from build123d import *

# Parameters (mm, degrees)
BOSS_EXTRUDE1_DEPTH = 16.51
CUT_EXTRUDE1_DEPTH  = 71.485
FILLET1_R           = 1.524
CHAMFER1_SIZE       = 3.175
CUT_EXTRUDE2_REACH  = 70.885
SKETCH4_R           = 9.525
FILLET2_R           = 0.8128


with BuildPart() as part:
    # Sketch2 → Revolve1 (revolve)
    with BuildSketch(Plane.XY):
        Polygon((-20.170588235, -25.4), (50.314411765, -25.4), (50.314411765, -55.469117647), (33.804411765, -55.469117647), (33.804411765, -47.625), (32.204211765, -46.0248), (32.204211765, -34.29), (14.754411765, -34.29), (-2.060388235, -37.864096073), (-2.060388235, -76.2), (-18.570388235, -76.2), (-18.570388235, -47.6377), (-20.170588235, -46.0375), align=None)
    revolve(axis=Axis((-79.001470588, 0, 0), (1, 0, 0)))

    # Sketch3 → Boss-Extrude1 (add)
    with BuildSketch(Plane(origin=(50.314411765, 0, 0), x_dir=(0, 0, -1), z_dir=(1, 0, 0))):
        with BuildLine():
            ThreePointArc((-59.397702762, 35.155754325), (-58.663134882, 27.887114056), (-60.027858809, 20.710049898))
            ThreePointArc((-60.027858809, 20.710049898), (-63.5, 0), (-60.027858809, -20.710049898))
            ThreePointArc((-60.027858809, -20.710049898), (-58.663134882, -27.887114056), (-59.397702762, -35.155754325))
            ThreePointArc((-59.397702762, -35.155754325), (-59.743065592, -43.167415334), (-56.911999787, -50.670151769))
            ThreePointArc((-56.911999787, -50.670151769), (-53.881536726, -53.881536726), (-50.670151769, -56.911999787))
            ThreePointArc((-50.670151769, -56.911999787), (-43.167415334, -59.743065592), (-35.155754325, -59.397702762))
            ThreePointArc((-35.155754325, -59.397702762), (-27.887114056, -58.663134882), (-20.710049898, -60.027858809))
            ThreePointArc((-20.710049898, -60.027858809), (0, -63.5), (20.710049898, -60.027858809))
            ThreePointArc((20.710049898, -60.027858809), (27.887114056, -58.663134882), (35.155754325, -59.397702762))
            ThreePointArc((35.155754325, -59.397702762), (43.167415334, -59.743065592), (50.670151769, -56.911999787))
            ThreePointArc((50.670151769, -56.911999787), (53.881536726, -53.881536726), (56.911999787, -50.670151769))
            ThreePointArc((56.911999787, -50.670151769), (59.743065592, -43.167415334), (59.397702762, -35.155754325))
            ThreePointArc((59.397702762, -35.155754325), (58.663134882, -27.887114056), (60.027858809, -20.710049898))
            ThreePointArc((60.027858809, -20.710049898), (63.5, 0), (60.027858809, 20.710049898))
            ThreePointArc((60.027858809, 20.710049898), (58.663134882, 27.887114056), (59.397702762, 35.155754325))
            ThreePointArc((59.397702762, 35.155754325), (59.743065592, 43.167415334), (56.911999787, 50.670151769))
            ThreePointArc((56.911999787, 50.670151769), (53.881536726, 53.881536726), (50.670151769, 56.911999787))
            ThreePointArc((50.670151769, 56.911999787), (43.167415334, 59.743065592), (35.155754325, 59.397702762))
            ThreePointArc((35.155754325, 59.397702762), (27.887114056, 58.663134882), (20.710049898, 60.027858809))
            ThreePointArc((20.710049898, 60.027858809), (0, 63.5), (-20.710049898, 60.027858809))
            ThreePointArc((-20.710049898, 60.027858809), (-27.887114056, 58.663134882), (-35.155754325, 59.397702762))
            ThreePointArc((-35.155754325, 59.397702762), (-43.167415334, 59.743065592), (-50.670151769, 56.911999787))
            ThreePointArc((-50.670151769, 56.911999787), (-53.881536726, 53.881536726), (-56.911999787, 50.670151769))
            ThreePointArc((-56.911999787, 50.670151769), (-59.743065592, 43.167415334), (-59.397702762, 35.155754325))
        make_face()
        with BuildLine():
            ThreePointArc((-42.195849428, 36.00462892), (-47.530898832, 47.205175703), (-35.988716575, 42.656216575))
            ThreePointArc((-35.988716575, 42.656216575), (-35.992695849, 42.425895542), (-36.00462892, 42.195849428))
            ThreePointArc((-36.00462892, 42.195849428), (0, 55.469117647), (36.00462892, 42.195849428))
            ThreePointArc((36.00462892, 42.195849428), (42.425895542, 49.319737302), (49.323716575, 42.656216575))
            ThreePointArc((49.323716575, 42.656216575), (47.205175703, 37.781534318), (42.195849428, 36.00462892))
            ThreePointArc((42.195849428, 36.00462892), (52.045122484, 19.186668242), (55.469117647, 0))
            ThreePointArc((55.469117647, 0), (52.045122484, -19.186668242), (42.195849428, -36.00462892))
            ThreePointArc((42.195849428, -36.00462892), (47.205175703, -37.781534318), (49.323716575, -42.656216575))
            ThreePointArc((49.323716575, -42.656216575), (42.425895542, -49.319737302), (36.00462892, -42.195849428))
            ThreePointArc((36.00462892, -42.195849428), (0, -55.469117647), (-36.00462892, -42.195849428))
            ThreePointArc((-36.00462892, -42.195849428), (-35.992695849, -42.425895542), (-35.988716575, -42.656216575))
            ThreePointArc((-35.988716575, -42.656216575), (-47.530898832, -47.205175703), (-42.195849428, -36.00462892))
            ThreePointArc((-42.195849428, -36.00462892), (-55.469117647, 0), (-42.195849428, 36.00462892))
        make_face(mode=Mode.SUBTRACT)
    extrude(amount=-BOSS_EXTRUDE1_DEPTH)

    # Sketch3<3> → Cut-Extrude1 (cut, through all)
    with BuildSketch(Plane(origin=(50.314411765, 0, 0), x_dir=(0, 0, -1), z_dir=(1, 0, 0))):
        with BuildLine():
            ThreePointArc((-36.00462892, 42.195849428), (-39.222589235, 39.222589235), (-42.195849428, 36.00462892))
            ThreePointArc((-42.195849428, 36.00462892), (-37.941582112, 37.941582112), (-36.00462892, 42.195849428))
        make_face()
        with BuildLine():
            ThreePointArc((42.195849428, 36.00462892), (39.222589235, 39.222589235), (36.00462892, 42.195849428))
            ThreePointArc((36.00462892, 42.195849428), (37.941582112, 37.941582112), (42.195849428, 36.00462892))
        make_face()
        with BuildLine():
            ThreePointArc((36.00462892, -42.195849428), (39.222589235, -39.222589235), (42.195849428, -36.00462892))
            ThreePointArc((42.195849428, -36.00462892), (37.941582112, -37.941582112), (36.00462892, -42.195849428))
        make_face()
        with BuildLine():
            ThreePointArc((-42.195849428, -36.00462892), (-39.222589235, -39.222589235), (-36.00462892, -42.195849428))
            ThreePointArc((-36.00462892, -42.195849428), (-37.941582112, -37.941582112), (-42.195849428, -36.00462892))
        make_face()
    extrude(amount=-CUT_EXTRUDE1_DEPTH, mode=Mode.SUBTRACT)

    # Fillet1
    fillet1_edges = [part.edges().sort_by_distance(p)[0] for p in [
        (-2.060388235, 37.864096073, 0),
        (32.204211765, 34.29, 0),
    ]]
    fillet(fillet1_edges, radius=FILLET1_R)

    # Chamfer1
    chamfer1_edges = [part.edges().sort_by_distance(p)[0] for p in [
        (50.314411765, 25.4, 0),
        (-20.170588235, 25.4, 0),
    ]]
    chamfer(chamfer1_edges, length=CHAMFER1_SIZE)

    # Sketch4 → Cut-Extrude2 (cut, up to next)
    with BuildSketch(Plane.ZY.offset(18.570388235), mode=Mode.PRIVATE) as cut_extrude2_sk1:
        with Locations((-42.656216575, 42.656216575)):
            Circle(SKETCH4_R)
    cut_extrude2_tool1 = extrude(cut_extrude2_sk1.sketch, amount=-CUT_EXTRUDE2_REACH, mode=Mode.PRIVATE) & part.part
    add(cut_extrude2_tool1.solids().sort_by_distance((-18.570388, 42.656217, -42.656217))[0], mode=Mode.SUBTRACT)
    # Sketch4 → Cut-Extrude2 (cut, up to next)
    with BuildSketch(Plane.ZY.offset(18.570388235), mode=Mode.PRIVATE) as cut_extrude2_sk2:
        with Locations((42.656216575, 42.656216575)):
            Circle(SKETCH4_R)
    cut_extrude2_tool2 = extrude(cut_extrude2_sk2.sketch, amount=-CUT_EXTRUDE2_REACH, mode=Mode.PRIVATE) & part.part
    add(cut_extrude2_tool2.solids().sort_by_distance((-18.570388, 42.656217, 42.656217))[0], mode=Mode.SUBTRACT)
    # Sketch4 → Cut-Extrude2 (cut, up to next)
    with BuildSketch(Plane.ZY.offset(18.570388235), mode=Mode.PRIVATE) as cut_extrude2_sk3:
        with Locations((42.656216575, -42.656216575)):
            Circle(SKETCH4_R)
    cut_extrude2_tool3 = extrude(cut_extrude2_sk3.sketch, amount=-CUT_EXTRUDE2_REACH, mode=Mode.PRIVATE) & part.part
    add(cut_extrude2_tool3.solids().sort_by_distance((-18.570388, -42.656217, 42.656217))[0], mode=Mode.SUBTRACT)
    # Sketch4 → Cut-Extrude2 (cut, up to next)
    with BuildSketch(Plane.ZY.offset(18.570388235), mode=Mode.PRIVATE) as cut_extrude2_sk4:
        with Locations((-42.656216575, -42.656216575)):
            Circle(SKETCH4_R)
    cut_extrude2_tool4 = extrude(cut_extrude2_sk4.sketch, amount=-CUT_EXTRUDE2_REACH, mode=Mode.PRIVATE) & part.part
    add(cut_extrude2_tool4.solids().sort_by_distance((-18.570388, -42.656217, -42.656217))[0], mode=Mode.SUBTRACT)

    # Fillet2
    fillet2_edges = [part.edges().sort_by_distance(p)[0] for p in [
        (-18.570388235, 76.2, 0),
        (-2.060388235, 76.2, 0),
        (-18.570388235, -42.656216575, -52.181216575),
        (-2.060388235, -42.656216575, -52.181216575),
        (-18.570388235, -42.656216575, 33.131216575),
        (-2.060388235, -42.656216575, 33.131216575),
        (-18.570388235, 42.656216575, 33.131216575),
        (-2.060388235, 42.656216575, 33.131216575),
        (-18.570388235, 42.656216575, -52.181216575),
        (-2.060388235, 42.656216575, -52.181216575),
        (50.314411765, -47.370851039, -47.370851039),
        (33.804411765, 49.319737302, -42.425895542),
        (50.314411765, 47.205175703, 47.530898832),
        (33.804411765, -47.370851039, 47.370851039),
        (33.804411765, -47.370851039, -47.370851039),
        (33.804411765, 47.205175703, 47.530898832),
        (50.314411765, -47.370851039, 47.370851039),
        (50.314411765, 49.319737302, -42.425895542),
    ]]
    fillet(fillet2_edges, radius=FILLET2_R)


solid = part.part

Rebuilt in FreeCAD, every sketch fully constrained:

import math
import FreeCAD as App
import Part
import Sketcher
Q = App.Units.Quantity


def edges_at(feature, points):
    """Names of the edges that pass closest to the given points."""
    edges = feature.Shape.Edges
    near = lambda p: min(range(len(edges)), key=lambda i: edges[i].distToShape(Part.Vertex(*p))[0])
    return sorted({f"Edge{near(p) + 1}" for p in points})


def add_polygon(sketch, points):
    """Adds a closed chain of lines whose ends are joined by coincident constraints."""
    first, n = sketch.GeometryCount, len(points)
    for a, b in zip(points, points[1:] + points[:1]):
        sketch.addGeometry(Part.LineSegment(App.Vector(*a, 0), App.Vector(*b, 0)), False)
    for i in range(n):
        sketch.addConstraint(Sketcher.Constraint("Coincident", first + i, 2, first + (i + 1) % n, 1))

doc = App.newDocument("Part")
body = doc.addObject("PartDesign::Body", "Body")

# Sketch on XY plane
sketch1 = doc.addObject("Sketcher::SketchObject", "Sketch")
body.addObject(sketch1)
sketch1.AttachmentSupport = (doc.XY_Plane, [""])
sketch1.MapMode = "FlatFace"
add_polygon(sketch1, [(50.3, -25.4), (-20.2, -25.4), (-20.2, -46), (-18.6, -47.6), (-18.6, -76.2), (-2.1, -76.2), (-2.1, -37.9), (14.8, -34.3), (32.2, -34.3), (32.2, -46), (33.8, -47.6), (33.8, -55.5), (50.3, -55.5)])  # lines 0-12
sketch1.addConstraint([
    Sketcher.Constraint("Horizontal", 0),
    Sketcher.Constraint("Vertical", 1),
    Sketcher.Constraint("Vertical", 3),
    Sketcher.Constraint("Horizontal", 4),
    Sketcher.Constraint("Vertical", 5),
    Sketcher.Constraint("Horizontal", 7),
    Sketcher.Constraint("Vertical", 8),
    Sketcher.Constraint("Vertical", 10),
    Sketcher.Constraint("Horizontal", 11),
    Sketcher.Constraint("Vertical", 12),
    Sketcher.Constraint("Parallel", 2, 9),
    Sketcher.Constraint("Equal", 4, 11),
    Sketcher.Constraint("Equal", 2, 9),
    Sketcher.Constraint("DistanceY", 0, 2, -1, 1, Q("1 in")),
    Sketcher.Constraint("DistanceY", 3, 2, -1, 1, Q("3 in")),
    Sketcher.Constraint("Angle", 2, Q("-45 deg")),
    Sketcher.Constraint("Angle", 6, Q("12 deg")),
    Sketcher.Constraint("DistanceX", 4, 1, 4, 2, Q("0.65 in")),
    Sketcher.Constraint("DistanceX", 6, 2, 11, 2, Q("1.4 in")),
    Sketcher.Constraint("DistanceX", 0, 2, 0, 1, Q("2.775 in")),
    Sketcher.Constraint("DistanceX", 7, 1, 7, 2, Q("0.687 in")),
    Sketcher.Constraint("DistanceY", 1, 2, 1, 1, Q("0.8125 in")),
    Sketcher.Constraint("DistanceY", 8, 2, 8, 1, Q("0.462 in")),
    Sketcher.Constraint("DistanceY", 6, 2, -1, 1, Q("1.35 in")),
    Sketcher.Constraint("DistanceY", 10, 2, 10, 1, 7.844118),
    Sketcher.Constraint("DistanceX", 0, 2, -1, 1, 20.170588),
])
revolution = doc.addObject("PartDesign::Revolution", "Revolution")
body.addObject(revolution)
revolution.Profile = sketch1
revolution.ReferenceAxis = (sketch1, ["H_Axis"])
revolution.Angle = 360

# Sketch on YZ plane
sketch2 = doc.addObject("Sketcher::SketchObject", "Sketch001")
body.addObject(sketch2)
sketch2.AttachmentSupport = (doc.YZ_Plane, [""])
sketch2.MapMode = "FlatFace"
sketch2.AttachmentOffset = App.Placement(App.Vector(0, 0, 50.314412), App.Rotation())
sketch2.addGeometry([
    Part.ArcOfCircle(Part.Circle(App.Vector(28.99, 84.04, 0), App.Vector(0, 0, 1), 25.4), math.radians(-109), math.radians(-76)),  # 0
    Part.ArcOfCircle(Part.Circle(App.Vector(0, 0, 0), App.Vector(0, 0, 1), 63.5), math.radians(71), math.radians(109)),  # 1
    Part.ArcOfCircle(Part.Circle(App.Vector(-28.99, 84.04, 0), App.Vector(0, 0, 1), 25.4), math.radians(-104), math.radians(-71)),  # 2
    Part.ArcOfCircle(Part.Circle(App.Vector(-40.01, 40.01, 0), App.Vector(0, 0, 1), 19.99), math.radians(76), math.radians(122)),  # 3
    Part.ArcOfCircle(Part.Circle(App.Vector(0, 0, 0), App.Vector(0, 0, 1), 76.2), math.radians(131.68), math.radians(138.32)),  # 4
    Part.ArcOfCircle(Part.Circle(App.Vector(-40.01, 40.01, 0), App.Vector(0, 0, 1), 19.99), math.radians(148), math.radians(194)),  # 5
    Part.ArcOfCircle(Part.Circle(App.Vector(-84.04, 28.99, 0), App.Vector(0, 0, 1), 25.4), math.radians(-19), math.radians(14)),  # 6
    Part.ArcOfCircle(Part.Circle(App.Vector(0, 0, 0), App.Vector(0, 0, 1), 63.5), math.radians(161), math.radians(199)),  # 7
    Part.ArcOfCircle(Part.Circle(App.Vector(-84.04, -28.99, 0), App.Vector(0, 0, 1), 25.4), math.radians(-14), math.radians(19)),  # 8
    Part.ArcOfCircle(Part.Circle(App.Vector(-40.01, -40.01, 0), App.Vector(0, 0, 1), 19.99), math.radians(166), math.radians(212)),  # 9
    Part.ArcOfCircle(Part.Circle(App.Vector(0, 0, 0), App.Vector(0, 0, 1), 76.2), math.radians(-138.32), math.radians(-131.68)),  # 10
    Part.ArcOfCircle(Part.Circle(App.Vector(-40.01, -40.01, 0), App.Vector(0, 0, 1), 19.99), math.radians(-122), math.radians(-76)),  # 11
    Part.ArcOfCircle(Part.Circle(App.Vector(-28.99, -84.04, 0), App.Vector(0, 0, 1), 25.4), math.radians(71), math.radians(104)),  # 12
    Part.ArcOfCircle(Part.Circle(App.Vector(0, 0, 0), App.Vector(0, 0, 1), 63.5), math.radians(-109), math.radians(-71)),  # 13
    Part.ArcOfCircle(Part.Circle(App.Vector(28.99, -84.04, 0), App.Vector(0, 0, 1), 25.4), math.radians(76), math.radians(109)),  # 14
    Part.ArcOfCircle(Part.Circle(App.Vector(40.01, -40.01, 0), App.Vector(0, 0, 1), 19.99), math.radians(-104), math.radians(-58)),  # 15
    Part.ArcOfCircle(Part.Circle(App.Vector(0, 0, 0), App.Vector(0, 0, 1), 76.2), math.radians(-48.32), math.radians(-41.68)),  # 16
    Part.ArcOfCircle(Part.Circle(App.Vector(40.01, -40.01, 0), App.Vector(0, 0, 1), 19.99), math.radians(-32), math.radians(14)),  # 17
    Part.ArcOfCircle(Part.Circle(App.Vector(84.04, -28.99, 0), App.Vector(0, 0, 1), 25.4), math.radians(161), math.radians(194)),  # 18
    Part.ArcOfCircle(Part.Circle(App.Vector(0, 0, 0), App.Vector(0, 0, 1), 63.5), math.radians(-19), math.radians(19)),  # 19
    Part.ArcOfCircle(Part.Circle(App.Vector(84.04, 28.99, 0), App.Vector(0, 0, 1), 25.4), math.radians(166), math.radians(199)),  # 20
    Part.ArcOfCircle(Part.Circle(App.Vector(40.01, 40.01, 0), App.Vector(0, 0, 1), 19.99), math.radians(-14), math.radians(32)),  # 21
    Part.ArcOfCircle(Part.Circle(App.Vector(0, 0, 0), App.Vector(0, 0, 1), 76.2), math.radians(41.68), math.radians(48.32)),  # 22
    Part.ArcOfCircle(Part.Circle(App.Vector(40.01, 40.01, 0), App.Vector(0, 0, 1), 19.99), math.radians(58), math.radians(104)),  # 23
    Part.ArcOfCircle(Part.Circle(App.Vector(0, 0, 0), App.Vector(0, 0, 1), 55.47), math.radians(50), math.radians(130)),  # 24
    Part.ArcOfCircle(Part.Circle(App.Vector(42.66, 42.66, 0), App.Vector(0, 0, 1), 6.67), math.radians(-90), math.radians(184)),  # 25
    Part.ArcOfCircle(Part.Circle(App.Vector(42.66, 42.66, 0), App.Vector(0, 0, 1), 6.67), math.radians(-93.96), math.radians(-90)),  # 26
    Part.ArcOfCircle(Part.Circle(App.Vector(0, 0, 0), App.Vector(0, 0, 1), 55.47), math.radians(-40), math.radians(40)),  # 27
    Part.ArcOfCircle(Part.Circle(App.Vector(42.66, -42.66, 0), App.Vector(0, 0, 1), 6.67), math.radians(-90), math.radians(94)),  # 28
    Part.ArcOfCircle(Part.Circle(App.Vector(42.66, -42.66, 0), App.Vector(0, 0, 1), 6.67), math.radians(176), math.radians(270)),  # 29
    Part.ArcOfCircle(Part.Circle(App.Vector(0, 0, 0), App.Vector(0, 0, 1), 55.47), math.radians(-90), math.radians(-50)),  # 30
    Part.ArcOfCircle(Part.Circle(App.Vector(0, 0, 0), App.Vector(0, 0, 1), 55.47), math.radians(-130), math.radians(-90)),  # 31
    Part.ArcOfCircle(Part.Circle(App.Vector(-42.66, -42.66, 0), App.Vector(0, 0, 1), 6.67), math.radians(-90), math.radians(4)),  # 32
    Part.ArcOfCircle(Part.Circle(App.Vector(-42.66, -42.66, 0), App.Vector(0, 0, 1), 6.67), math.radians(86), math.radians(270)),  # 33
    Part.ArcOfCircle(Part.Circle(App.Vector(0, 0, 0), App.Vector(0, 0, 1), 55.47), math.radians(140), math.radians(220)),  # 34
    Part.ArcOfCircle(Part.Circle(App.Vector(-42.66, 42.66, 0), App.Vector(0, 0, 1), 6.67), math.radians(-90), math.radians(-86.04)),  # 35
    Part.ArcOfCircle(Part.Circle(App.Vector(-42.66, 42.66, 0), App.Vector(0, 0, 1), 6.67), math.radians(-4), math.radians(270)),  # 36
], False)
sketch2.addConstraint([
    Sketcher.Constraint("Tangent", 0, 1, 1, 1),
    Sketcher.Constraint("Tangent", 1, 2, 2, 2),
    Sketcher.Constraint("Tangent", 2, 1, 3, 1),
    Sketcher.Constraint("Coincident", 3, 2, 4, 1),
    Sketcher.Constraint("Coincident", 4, 2, 5, 1),
    Sketcher.Constraint("Tangent", 5, 2, 6, 2),
    Sketcher.Constraint("Tangent", 6, 1, 7, 1),
    Sketcher.Constraint("Tangent", 7, 2, 8, 2),
    Sketcher.Constraint("Tangent", 8, 1, 9, 1),
    Sketcher.Constraint("Coincident", 9, 2, 10, 1),
    Sketcher.Constraint("Coincident", 10, 2, 11, 1),
    Sketcher.Constraint("Tangent", 11, 2, 12, 2),
    Sketcher.Constraint("Tangent", 12, 1, 13, 1),
    Sketcher.Constraint("Tangent", 13, 2, 14, 2),
    Sketcher.Constraint("Tangent", 14, 1, 15, 1),
    Sketcher.Constraint("Coincident", 15, 2, 16, 1),
    Sketcher.Constraint("Coincident", 16, 2, 17, 1),
    Sketcher.Constraint("Tangent", 17, 2, 18, 2),
    Sketcher.Constraint("Tangent", 18, 1, 19, 1),
    Sketcher.Constraint("Tangent", 19, 2, 20, 2),
    Sketcher.Constraint("Tangent", 20, 1, 21, 1),
    Sketcher.Constraint("Coincident", 21, 2, 22, 1),
    Sketcher.Constraint("Coincident", 22, 2, 23, 1),
    Sketcher.Constraint("Tangent", 23, 2, 0, 2),
    Sketcher.Constraint("Coincident", 24, 1, 25, 2),
    Sketcher.Constraint("Tangent", 25, 1, 26, 2),
    Sketcher.Constraint("Coincident", 26, 1, 27, 2),
    Sketcher.Constraint("Coincident", 27, 1, 28, 2),
    Sketcher.Constraint("Tangent", 28, 1, 29, 2),
    Sketcher.Constraint("Coincident", 29, 1, 30, 2),
    Sketcher.Constraint("Tangent", 30, 1, 31, 2),
    Sketcher.Constraint("Coincident", 31, 1, 32, 2),
    Sketcher.Constraint("Tangent", 32, 1, 33, 2),
    Sketcher.Constraint("Coincident", 33, 1, 34, 2),
    Sketcher.Constraint("Coincident", 34, 1, 35, 2),
    Sketcher.Constraint("Tangent", 35, 1, 36, 2),
    Sketcher.Constraint("Coincident", 36, 1, 24, 2),
    Sketcher.Constraint("Coincident", 1, 3, -1, 1),
    Sketcher.Constraint("Coincident", 4, 3, -1, 1),
    Sketcher.Constraint("Coincident", 7, 3, -1, 1),
    Sketcher.Constraint("Coincident", 10, 3, -1, 1),
    Sketcher.Constraint("Coincident", 13, 3, -1, 1),
    Sketcher.Constraint("Coincident", 16, 3, -1, 1),
    Sketcher.Constraint("Coincident", 19, 3, -1, 1),
    Sketcher.Constraint("Coincident", 22, 3, -1, 1),
    Sketcher.Constraint("Coincident", 24, 3, -1, 1),
    Sketcher.Constraint("Coincident", 27, 3, -1, 1),
    Sketcher.Constraint("Coincident", 30, 3, -1, 1),
    Sketcher.Constraint("Coincident", 34, 3, -1, 1),
    Sketcher.Constraint("Coincident", 5, 3, 3, 3),
    Sketcher.Constraint("Coincident", 11, 3, 9, 3),
    Sketcher.Constraint("Coincident", 17, 3, 15, 3),
    Sketcher.Constraint("Coincident", 23, 3, 21, 3),
    Sketcher.Constraint("Equal", 0, 2),
    Sketcher.Constraint("Equal", 3, 5),
    Sketcher.Constraint("Equal", 2, 6),
    Sketcher.Constraint("Equal", 1, 7),
    Sketcher.Constraint("Equal", 6, 8),
    Sketcher.Constraint("Equal", 5, 9),
    Sketcher.Constraint("Equal", 4, 10),
    Sketcher.Constraint("Equal", 9, 11),
    Sketcher.Constraint("Equal", 8, 12),
    Sketcher.Constraint("Equal", 7, 13),
    Sketcher.Constraint("Equal", 12, 14),
    Sketcher.Constraint("Equal", 11, 15),
    Sketcher.Constraint("Equal", 10, 16),
    Sketcher.Constraint("Equal", 15, 17),
    Sketcher.Constraint("Equal", 14, 18),
    Sketcher.Constraint("Equal", 13, 19),
    Sketcher.Constraint("Equal", 18, 20),
    Sketcher.Constraint("Equal", 17, 21),
    Sketcher.Constraint("Equal", 16, 22),
    Sketcher.Constraint("Equal", 21, 23),
    Sketcher.Constraint("Equal", 25, 26),
    Sketcher.Constraint("Equal", 24, 27),
    Sketcher.Constraint("Equal", 26, 28),
    Sketcher.Constraint("Equal", 28, 29),
    Sketcher.Constraint("Equal", 27, 30),
    Sketcher.Constraint("Equal", 30, 31),
    Sketcher.Constraint("Equal", 29, 32),
    Sketcher.Constraint("Equal", 32, 33),
    Sketcher.Constraint("Equal", 31, 34),
    Sketcher.Constraint("Equal", 33, 35),
    Sketcher.Constraint("Equal", 35, 36),
    Sketcher.Constraint("Symmetric", 3, 3, 15, 3, -1, 1),
    Sketcher.Constraint("Symmetric", 9, 3, 21, 3, -1, 1),
    Sketcher.Constraint("Symmetric", 25, 3, 32, 3, -1, 1),
    Sketcher.Constraint("Symmetric", 28, 3, 35, 3, -1, 1),
    Sketcher.Constraint("Symmetric", 9, 3, 15, 3, -2),
    Sketcher.Constraint("Symmetric", 28, 3, 32, 3, -2),
    Sketcher.Constraint("PointOnObject", 30, 1, -2),
    Sketcher.Constraint("Vertical", 29, 3, 25, 1),
    Sketcher.Constraint("Vertical", 25, 1, 28, 1),
    Sketcher.Constraint("Vertical", 36, 3, 32, 1),
    Sketcher.Constraint("Vertical", 32, 1, 35, 1),
    Sketcher.Constraint("Radius", 0, Q("1 in")),
    Sketcher.Constraint("Radius", 4, Q("3 in")),
    Sketcher.Constraint("Radius", 1, Q("2.5 in")),
    Sketcher.Constraint("Radius", 3, Q("0.787 in")),
    Sketcher.Constraint("Radius", 25, Q("0.2625 in")),
    Sketcher.Constraint("DistanceX", 3, 3, -1, 1, Q("1.575 in")),
    Sketcher.Constraint("DistanceY", -1, 1, 3, 3, Q("1.575 in")),
    Sketcher.Constraint("Radius", 24, 55.469118),
    Sketcher.Constraint("DistanceX", -1, 1, 24, 1, 36.004629),
    Sketcher.Constraint("DistanceX", -1, 1, 26, 1, 42.195849),
])
pad1 = doc.addObject("PartDesign::Pad", "Pad")
body.addObject(pad1)
pad1.Profile = sketch2
pad1.Length = Q("0.65 in")
pad1.Reversed = True

# Sketch on YZ plane
sketch3 = doc.addObject("Sketcher::SketchObject", "Sketch002")
body.addObject(sketch3)
sketch3.AttachmentSupport = (doc.YZ_Plane, [""])
sketch3.MapMode = "FlatFace"
sketch3.AttachmentOffset = App.Placement(App.Vector(0, 0, 50.314412), App.Rotation())
sketch3.addGeometry([
    Part.ArcOfCircle(Part.Circle(App.Vector(0, 0, 0), App.Vector(0, 0, 1), 55), math.radians(40.47), math.radians(49.53)),  # 0
    Part.ArcOfCircle(Part.Circle(App.Vector(43, 43, 0), App.Vector(0, 0, 1), 7), math.radians(-176), math.radians(-94)),  # 1
    Part.ArcOfCircle(Part.Circle(App.Vector(0, 0, 0), App.Vector(0, 0, 1), 55), math.radians(-49.53), math.radians(-40.47)),  # 2
    Part.ArcOfCircle(Part.Circle(App.Vector(43, -43, 0), App.Vector(0, 0, 1), 7), math.radians(94), math.radians(176)),  # 3
    Part.ArcOfCircle(Part.Circle(App.Vector(0, 0, 0), App.Vector(0, 0, 1), 55), math.radians(-139.53), math.radians(-130.47)),  # 4
    Part.ArcOfCircle(Part.Circle(App.Vector(-43, -43, 0), App.Vector(0, 0, 1), 7), math.radians(4), math.radians(86)),  # 5
    Part.ArcOfCircle(Part.Circle(App.Vector(0, 0, 0), App.Vector(0, 0, 1), 55), math.radians(130.47), math.radians(139.53)),  # 6
    Part.ArcOfCircle(Part.Circle(App.Vector(-43, 43, 0), App.Vector(0, 0, 1), 7), math.radians(-86), math.radians(-4)),  # 7
], False)
sketch3.addConstraint([
    Sketcher.Constraint("Coincident", 0, 1, 1, 2),
    Sketcher.Constraint("Coincident", 1, 1, 0, 2),
    Sketcher.Constraint("Coincident", 2, 1, 3, 2),
    Sketcher.Constraint("Coincident", 3, 1, 2, 2),
    Sketcher.Constraint("Coincident", 4, 1, 5, 2),
    Sketcher.Constraint("Coincident", 5, 1, 4, 2),
    Sketcher.Constraint("Coincident", 6, 1, 7, 2),
    Sketcher.Constraint("Coincident", 7, 1, 6, 2),
    Sketcher.Constraint("Coincident", 0, 3, -1, 1),
    Sketcher.Constraint("Coincident", 2, 3, -1, 1),
    Sketcher.Constraint("Coincident", 4, 3, -1, 1),
    Sketcher.Constraint("Coincident", 6, 3, -1, 1),
    Sketcher.Constraint("Equal", 0, 2),
    Sketcher.Constraint("Equal", 1, 3),
    Sketcher.Constraint("Equal", 2, 4),
    Sketcher.Constraint("Equal", 3, 5),
    Sketcher.Constraint("Equal", 4, 6),
    Sketcher.Constraint("Equal", 5, 7),
    Sketcher.Constraint("Symmetric", 1, 3, 5, 3, -1, 1),
    Sketcher.Constraint("Symmetric", 3, 3, 7, 3, -1, 1),
    Sketcher.Constraint("Symmetric", 3, 3, 5, 3, -2),
    Sketcher.Constraint("Radius", 1, Q("0.2625 in")),
    Sketcher.Constraint("Radius", 0, 55.469118),
    Sketcher.Constraint("DistanceX", -1, 1, 0, 1, 42.195849),
    Sketcher.Constraint("DistanceX", -1, 1, 1, 1, 36.004629),
])
pocket1 = doc.addObject("PartDesign::Pocket", "Pocket")
body.addObject(pocket1)
pocket1.Profile = sketch3
pocket1.Type = "ThroughAll"
doc.recompute()

fillet = doc.addObject("PartDesign::Fillet", "Fillet")
body.addObject(fillet)
fillet.Base = (pocket1, edges_at(pocket1, [(-2.06, 37.864, 0), (32.204, 34.29, 0)]))
fillet.Radius = Q("0.06 in")
doc.recompute()

chamfer = doc.addObject("PartDesign::Chamfer", "Chamfer")
body.addObject(chamfer)
chamfer.Base = (fillet, edges_at(fillet, [(50.314, 25.4, 0), (-20.171, 25.4, 0)]))
chamfer.Size = Q("0.125 in")

# Sketch on YZ plane
sketch4 = doc.addObject("Sketcher::SketchObject", "Sketch003")
body.addObject(sketch4)
sketch4.AttachmentSupport = (doc.YZ_Plane, [""])
sketch4.MapMode = "FlatFace"
sketch4.AttachmentOffset = App.Placement(App.Vector(0, 0, -18.570388), App.Rotation())
sketch4.addGeometry(Part.Circle(App.Vector(43, -43, 0), App.Vector(0, 0, 1), 10), False)
sketch4.addConstraint([
    Sketcher.Constraint("Diameter", 0, Q("0.75 in")),
    Sketcher.Constraint("DistanceX", -1, 1, 0, 3, 42.656217),
    Sketcher.Constraint("DistanceY", 0, 3, -1, 1, 42.656217),
])
pocket2 = doc.addObject("PartDesign::Pocket", "Pocket001")
body.addObject(pocket2)
pocket2.Profile = sketch4
pocket2.Type = "UpToFirst"
pocket2.Reversed = True

# Sketch on YZ plane
sketch5 = doc.addObject("Sketcher::SketchObject", "Sketch004")
body.addObject(sketch5)
sketch5.AttachmentSupport = (doc.YZ_Plane, [""])
sketch5.MapMode = "FlatFace"
sketch5.AttachmentOffset = App.Placement(App.Vector(0, 0, -18.570388), App.Rotation())
sketch5.addGeometry(Part.Circle(App.Vector(43, 43, 0), App.Vector(0, 0, 1), 10), False)
sketch5.addConstraint([
    Sketcher.Constraint("Diameter", 0, Q("0.75 in")),
    Sketcher.Constraint("DistanceX", -1, 1, 0, 3, 42.656217),
    Sketcher.Constraint("DistanceY", -1, 1, 0, 3, 42.656217),
])
pocket3 = doc.addObject("PartDesign::Pocket", "Pocket002")
body.addObject(pocket3)
pocket3.Profile = sketch5
pocket3.Type = "UpToFirst"
pocket3.Reversed = True

# Sketch on YZ plane
sketch6 = doc.addObject("Sketcher::SketchObject", "Sketch005")
body.addObject(sketch6)
sketch6.AttachmentSupport = (doc.YZ_Plane, [""])
sketch6.MapMode = "FlatFace"
sketch6.AttachmentOffset = App.Placement(App.Vector(0, 0, -18.570388), App.Rotation())
sketch6.addGeometry(Part.Circle(App.Vector(-43, 43, 0), App.Vector(0, 0, 1), 10), False)
sketch6.addConstraint([
    Sketcher.Constraint("Diameter", 0, Q("0.75 in")),
    Sketcher.Constraint("DistanceX", 0, 3, -1, 1, 42.656217),
    Sketcher.Constraint("DistanceY", -1, 1, 0, 3, 42.656217),
])
pocket4 = doc.addObject("PartDesign::Pocket", "Pocket003")
body.addObject(pocket4)
pocket4.Profile = sketch6
pocket4.Type = "UpToFirst"
pocket4.Reversed = True

# Sketch on YZ plane
sketch7 = doc.addObject("Sketcher::SketchObject", "Sketch006")
body.addObject(sketch7)
sketch7.AttachmentSupport = (doc.YZ_Plane, [""])
sketch7.MapMode = "FlatFace"
sketch7.AttachmentOffset = App.Placement(App.Vector(0, 0, -18.570388), App.Rotation())
sketch7.addGeometry(Part.Circle(App.Vector(-43, -43, 0), App.Vector(0, 0, 1), 10), False)
sketch7.addConstraint([
    Sketcher.Constraint("Diameter", 0, Q("0.75 in")),
    Sketcher.Constraint("DistanceX", 0, 3, -1, 1, 42.656217),
    Sketcher.Constraint("DistanceY", 0, 3, -1, 1, 42.656217),
])
pocket5 = doc.addObject("PartDesign::Pocket", "Pocket004")
body.addObject(pocket5)
pocket5.Profile = sketch7
pocket5.Type = "UpToFirst"
pocket5.Reversed = True
doc.recompute()

fillet2 = doc.addObject("PartDesign::Fillet", "Fillet001")
body.addObject(fillet2)
fillet2.Base = (pocket5, edges_at(pocket5, [
    (-18.57, 76.2, 0),
    (-2.06, 76.2, 0),
    (-18.57, -42.656, -52.181),
    (-2.06, -42.656, -52.181),
    (-18.57, -42.656, 33.131),
    (-2.06, -42.656, 33.131),
    (-18.57, 42.656, 33.131),
    (-2.06, 42.656, 33.131),
    (-18.57, 42.656, -52.181),
    (-2.06, 42.656, -52.181),
    (50.314, -49.32, -42.426),
    (33.804, 49.32, -42.426),
    (50.314, 47.205, 47.531),
    (33.804, -47.205, 47.531),
    (33.804, -49.32, -42.426),
    (33.804, 47.205, 47.531),
    (50.314, -47.205, 47.531),
    (50.314, 49.32, -42.426),
]))
fillet2.Radius = Q("0.032 in")

doc.recompute()
